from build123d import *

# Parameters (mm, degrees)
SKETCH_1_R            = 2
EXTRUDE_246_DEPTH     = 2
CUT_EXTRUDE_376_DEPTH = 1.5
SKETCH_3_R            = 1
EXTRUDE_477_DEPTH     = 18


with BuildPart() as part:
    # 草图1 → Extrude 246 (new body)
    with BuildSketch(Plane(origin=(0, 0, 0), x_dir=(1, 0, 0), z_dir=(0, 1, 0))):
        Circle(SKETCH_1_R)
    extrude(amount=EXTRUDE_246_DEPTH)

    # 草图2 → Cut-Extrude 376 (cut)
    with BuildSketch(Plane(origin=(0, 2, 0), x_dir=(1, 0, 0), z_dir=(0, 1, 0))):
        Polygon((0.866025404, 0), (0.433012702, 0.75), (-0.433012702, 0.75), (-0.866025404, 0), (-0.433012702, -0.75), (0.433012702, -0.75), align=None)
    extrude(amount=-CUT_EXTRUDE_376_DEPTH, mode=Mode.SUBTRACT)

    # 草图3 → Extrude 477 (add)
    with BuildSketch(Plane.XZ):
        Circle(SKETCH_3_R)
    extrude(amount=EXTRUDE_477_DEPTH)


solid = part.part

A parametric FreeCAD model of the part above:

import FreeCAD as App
import Part
import Sketcher
Q = App.Units.Quantity


def add_polygon(sketch, points):
    """Adds a closed chain of lines whose ends are joined by coincident constraints."""
    first, n = sketch.GeometryCount, len(points)
    for a, b in zip(points, points[1:] + points[:1]):
        sketch.addGeometry(Part.LineSegment(App.Vector(*a, 0), App.Vector(*b, 0)), False)
    for i in range(n):
        sketch.addConstraint(Sketcher.Constraint("Coincident", first + i, 2, first + (i + 1) % n, 1))

doc = App.newDocument("Part")
body = doc.addObject("PartDesign::Body", "Body")

sketch1 = body.newObject("Sketcher::SketchObject", "Sketch")
sketch1.AttachmentSupport = (doc.getObject("XZ_Plane"), [""])
sketch1.MapMode = "FlatFace"
sketch1.addGeometry(Part.Circle(App.Vector(0, 0, 0), App.Vector(0, 0, 1), 2), False)
sketch1.addConstraint(Sketcher.Constraint("Coincident", 0, 3, -1, 1))
sketch1.addConstraint(Sketcher.Constraint("Diameter", 0, Q("4 mm")))
pad1 = body.newObject("PartDesign::Pad", "Pad")
pad1.Profile = sketch1
pad1.Length = 2
pad1.Reversed = True

sketch2 = body.newObject("Sketcher::SketchObject", "Sketch001")
sketch2.AttachmentSupport = (doc.getObject("XZ_Plane"), [""])
sketch2.MapMode = "FlatFace"
sketch2.AttachmentOffset = App.Placement(App.Vector(0, 0, -2), App.Rotation())
add_polygon(sketch2, [(0.9, 0), (0.4, -0.8), (-0.4, -0.8), (-0.9, 0), (-0.4, 0.8), (0.4, 0.8)])
sketch2.addConstraint(Sketcher.Constraint("Horizontal", 1))
sketch2.addConstraint(Sketcher.Constraint("Horizontal", 4))
sketch2.addConstraint(Sketcher.Constraint("Symmetric", 0, 2, 3, 2, -1, 1))
sketch2.addConstraint(Sketcher.Constraint("Symmetric", 2, 2, 5, 2, -1, 1))
sketch2.addConstraint(Sketcher.Constraint("PointOnObject", 2, 2, -1))
sketch2.addConstraint(Sketcher.Constraint("Parallel", 2, 5))
sketch2.addConstraint(Sketcher.Constraint("Vertical", 1, 2, 3, 2))
sketch2.addConstraint(Sketcher.Constraint("Angle", 0, Q("-120 deg")))
sketch2.addConstraint(Sketcher.Constraint("DistanceY", 1, 2, 3, 2, Q("1.5 mm")))
sketch2.addConstraint(Sketcher.Constraint("DistanceX", 1, 2, 1, 1, Q("0.866025 mm")))
pocket1 = body.newObject("PartDesign::Pocket", "Pocket")
pocket1.Profile = sketch2
pocket1.Length = 1.5
pocket1.Reversed = True

sketch3 = body.newObject("Sketcher::SketchObject", "Sketch002")
sketch3.AttachmentSupport = (doc.getObject("XZ_Plane"), [""])
sketch3.MapMode = "FlatFace"
sketch3.addGeometry(Part.Circle(App.Vector(0, 0, 0), App.Vector(0, 0, 1), 1), False)
sketch3.addConstraint(Sketcher.Constraint("Coincident", 0, 3, -1, 1))
sketch3.addConstraint(Sketcher.Constraint("Diameter", 0, Q("2 mm")))
pad2 = body.newObject("PartDesign::Pad", "Pad001")
pad2.Profile = sketch3
pad2.Length = 18

doc.recompute()
